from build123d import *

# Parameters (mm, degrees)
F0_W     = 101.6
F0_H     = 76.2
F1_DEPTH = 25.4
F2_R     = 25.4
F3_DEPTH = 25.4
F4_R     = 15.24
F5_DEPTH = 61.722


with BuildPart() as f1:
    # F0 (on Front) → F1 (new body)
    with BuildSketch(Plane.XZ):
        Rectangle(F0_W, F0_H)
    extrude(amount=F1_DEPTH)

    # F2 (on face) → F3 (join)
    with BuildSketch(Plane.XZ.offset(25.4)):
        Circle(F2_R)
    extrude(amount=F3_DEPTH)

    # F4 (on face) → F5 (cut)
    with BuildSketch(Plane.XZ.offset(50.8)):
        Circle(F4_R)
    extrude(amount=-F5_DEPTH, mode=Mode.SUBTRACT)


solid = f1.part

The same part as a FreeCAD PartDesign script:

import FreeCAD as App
import Part
import Sketcher

V = App.Vector
Q = App.Units.Quantity


def add_polygon(sketch, points):
    """Adds a closed chain of lines whose ends are joined by coincident constraints."""
    first, n = sketch.GeometryCount, len(points)
    for a, b in zip(points, points[1:] + points[:1]):
        sketch.addGeometry(Part.LineSegment(App.Vector(*a, 0), App.Vector(*b, 0)), False)
    for i in range(n):
        sketch.addConstraint(Sketcher.Constraint("Coincident", first + i, 2, first + (i + 1) % n, 1))

doc = App.newDocument("Part")
body = doc.addObject("PartDesign::Body", "Body")

# Sketch on XZ plane
sketch1 = doc.addObject("Sketcher::SketchObject", "Sketch")
body.addObject(sketch1)
sketch1.AttachmentSupport = (doc.XZ_Plane, [""])
sketch1.MapMode = "FlatFace"
add_polygon(sketch1, [(-51, 38), (-51, -38), (51, -38), (51, 38)])  # lines 0-3
sketch1.addConstraint([
    Sketcher.Constraint("Vertical", 0),
    Sketcher.Constraint("Horizontal", 1),
    Sketcher.Constraint("Vertical", 2),
    Sketcher.Constraint("Horizontal", 3),
    Sketcher.Constraint("Symmetric", 0, 2, 2, 2, -1, 1),
    Sketcher.Constraint("DistanceX", 1, 1, 1, 2, Q("4 in")),
    Sketcher.Constraint("DistanceY", 0, 2, 0, 1, Q("3 in")),
])
pad1 = doc.addObject("PartDesign::Pad", "Pad")
body.addObject(pad1)
pad1.Profile = sketch1
pad1.Length = Q("1 in")

# Sketch on XZ plane
sketch2 = doc.addObject("Sketcher::SketchObject", "Sketch001")
body.addObject(sketch2)
sketch2.AttachmentSupport = (doc.XZ_Plane, [""])
sketch2.MapMode = "FlatFace"
sketch2.AttachmentOffset = App.Placement(V(0, 0, 1 * 25.4), App.Rotation())
sketch2.addGeometry(Part.Circle(V(0, 0, 0), V(0, 0, 1), 25), False)
sketch2.addConstraint([
    Sketcher.Constraint("Coincident", 0, 3, -1, 1),
    Sketcher.Constraint("Diameter", 0, Q("2 in")),
])
pad2 = doc.addObject("PartDesign::Pad", "Pad001")
body.addObject(pad2)
pad2.Profile = sketch2
pad2.Length = Q("1 in")

# Sketch on XZ plane
sketch3 = doc.addObject("Sketcher::SketchObject", "Sketch002")
body.addObject(sketch3)
sketch3.AttachmentSupport = (doc.XZ_Plane, [""])
sketch3.MapMode = "FlatFace"
sketch3.AttachmentOffset = App.Placement(V(0, 0, 2 * 25.4), App.Rotation())
sketch3.addGeometry(Part.Circle(V(0, 0, 0), V(0, 0, 1), 15), False)
sketch3.addConstraint([
    Sketcher.Constraint("Coincident", 0, 3, -1, 1),
    Sketcher.Constraint("Diameter", 0, Q("1.2 in")),
])
pocket1 = doc.addObject("PartDesign::Pocket", "Pocket")
body.addObject(pocket1)
pocket1.Profile = sketch3
pocket1.Length = Q("2.43 in")

doc.recompute()
